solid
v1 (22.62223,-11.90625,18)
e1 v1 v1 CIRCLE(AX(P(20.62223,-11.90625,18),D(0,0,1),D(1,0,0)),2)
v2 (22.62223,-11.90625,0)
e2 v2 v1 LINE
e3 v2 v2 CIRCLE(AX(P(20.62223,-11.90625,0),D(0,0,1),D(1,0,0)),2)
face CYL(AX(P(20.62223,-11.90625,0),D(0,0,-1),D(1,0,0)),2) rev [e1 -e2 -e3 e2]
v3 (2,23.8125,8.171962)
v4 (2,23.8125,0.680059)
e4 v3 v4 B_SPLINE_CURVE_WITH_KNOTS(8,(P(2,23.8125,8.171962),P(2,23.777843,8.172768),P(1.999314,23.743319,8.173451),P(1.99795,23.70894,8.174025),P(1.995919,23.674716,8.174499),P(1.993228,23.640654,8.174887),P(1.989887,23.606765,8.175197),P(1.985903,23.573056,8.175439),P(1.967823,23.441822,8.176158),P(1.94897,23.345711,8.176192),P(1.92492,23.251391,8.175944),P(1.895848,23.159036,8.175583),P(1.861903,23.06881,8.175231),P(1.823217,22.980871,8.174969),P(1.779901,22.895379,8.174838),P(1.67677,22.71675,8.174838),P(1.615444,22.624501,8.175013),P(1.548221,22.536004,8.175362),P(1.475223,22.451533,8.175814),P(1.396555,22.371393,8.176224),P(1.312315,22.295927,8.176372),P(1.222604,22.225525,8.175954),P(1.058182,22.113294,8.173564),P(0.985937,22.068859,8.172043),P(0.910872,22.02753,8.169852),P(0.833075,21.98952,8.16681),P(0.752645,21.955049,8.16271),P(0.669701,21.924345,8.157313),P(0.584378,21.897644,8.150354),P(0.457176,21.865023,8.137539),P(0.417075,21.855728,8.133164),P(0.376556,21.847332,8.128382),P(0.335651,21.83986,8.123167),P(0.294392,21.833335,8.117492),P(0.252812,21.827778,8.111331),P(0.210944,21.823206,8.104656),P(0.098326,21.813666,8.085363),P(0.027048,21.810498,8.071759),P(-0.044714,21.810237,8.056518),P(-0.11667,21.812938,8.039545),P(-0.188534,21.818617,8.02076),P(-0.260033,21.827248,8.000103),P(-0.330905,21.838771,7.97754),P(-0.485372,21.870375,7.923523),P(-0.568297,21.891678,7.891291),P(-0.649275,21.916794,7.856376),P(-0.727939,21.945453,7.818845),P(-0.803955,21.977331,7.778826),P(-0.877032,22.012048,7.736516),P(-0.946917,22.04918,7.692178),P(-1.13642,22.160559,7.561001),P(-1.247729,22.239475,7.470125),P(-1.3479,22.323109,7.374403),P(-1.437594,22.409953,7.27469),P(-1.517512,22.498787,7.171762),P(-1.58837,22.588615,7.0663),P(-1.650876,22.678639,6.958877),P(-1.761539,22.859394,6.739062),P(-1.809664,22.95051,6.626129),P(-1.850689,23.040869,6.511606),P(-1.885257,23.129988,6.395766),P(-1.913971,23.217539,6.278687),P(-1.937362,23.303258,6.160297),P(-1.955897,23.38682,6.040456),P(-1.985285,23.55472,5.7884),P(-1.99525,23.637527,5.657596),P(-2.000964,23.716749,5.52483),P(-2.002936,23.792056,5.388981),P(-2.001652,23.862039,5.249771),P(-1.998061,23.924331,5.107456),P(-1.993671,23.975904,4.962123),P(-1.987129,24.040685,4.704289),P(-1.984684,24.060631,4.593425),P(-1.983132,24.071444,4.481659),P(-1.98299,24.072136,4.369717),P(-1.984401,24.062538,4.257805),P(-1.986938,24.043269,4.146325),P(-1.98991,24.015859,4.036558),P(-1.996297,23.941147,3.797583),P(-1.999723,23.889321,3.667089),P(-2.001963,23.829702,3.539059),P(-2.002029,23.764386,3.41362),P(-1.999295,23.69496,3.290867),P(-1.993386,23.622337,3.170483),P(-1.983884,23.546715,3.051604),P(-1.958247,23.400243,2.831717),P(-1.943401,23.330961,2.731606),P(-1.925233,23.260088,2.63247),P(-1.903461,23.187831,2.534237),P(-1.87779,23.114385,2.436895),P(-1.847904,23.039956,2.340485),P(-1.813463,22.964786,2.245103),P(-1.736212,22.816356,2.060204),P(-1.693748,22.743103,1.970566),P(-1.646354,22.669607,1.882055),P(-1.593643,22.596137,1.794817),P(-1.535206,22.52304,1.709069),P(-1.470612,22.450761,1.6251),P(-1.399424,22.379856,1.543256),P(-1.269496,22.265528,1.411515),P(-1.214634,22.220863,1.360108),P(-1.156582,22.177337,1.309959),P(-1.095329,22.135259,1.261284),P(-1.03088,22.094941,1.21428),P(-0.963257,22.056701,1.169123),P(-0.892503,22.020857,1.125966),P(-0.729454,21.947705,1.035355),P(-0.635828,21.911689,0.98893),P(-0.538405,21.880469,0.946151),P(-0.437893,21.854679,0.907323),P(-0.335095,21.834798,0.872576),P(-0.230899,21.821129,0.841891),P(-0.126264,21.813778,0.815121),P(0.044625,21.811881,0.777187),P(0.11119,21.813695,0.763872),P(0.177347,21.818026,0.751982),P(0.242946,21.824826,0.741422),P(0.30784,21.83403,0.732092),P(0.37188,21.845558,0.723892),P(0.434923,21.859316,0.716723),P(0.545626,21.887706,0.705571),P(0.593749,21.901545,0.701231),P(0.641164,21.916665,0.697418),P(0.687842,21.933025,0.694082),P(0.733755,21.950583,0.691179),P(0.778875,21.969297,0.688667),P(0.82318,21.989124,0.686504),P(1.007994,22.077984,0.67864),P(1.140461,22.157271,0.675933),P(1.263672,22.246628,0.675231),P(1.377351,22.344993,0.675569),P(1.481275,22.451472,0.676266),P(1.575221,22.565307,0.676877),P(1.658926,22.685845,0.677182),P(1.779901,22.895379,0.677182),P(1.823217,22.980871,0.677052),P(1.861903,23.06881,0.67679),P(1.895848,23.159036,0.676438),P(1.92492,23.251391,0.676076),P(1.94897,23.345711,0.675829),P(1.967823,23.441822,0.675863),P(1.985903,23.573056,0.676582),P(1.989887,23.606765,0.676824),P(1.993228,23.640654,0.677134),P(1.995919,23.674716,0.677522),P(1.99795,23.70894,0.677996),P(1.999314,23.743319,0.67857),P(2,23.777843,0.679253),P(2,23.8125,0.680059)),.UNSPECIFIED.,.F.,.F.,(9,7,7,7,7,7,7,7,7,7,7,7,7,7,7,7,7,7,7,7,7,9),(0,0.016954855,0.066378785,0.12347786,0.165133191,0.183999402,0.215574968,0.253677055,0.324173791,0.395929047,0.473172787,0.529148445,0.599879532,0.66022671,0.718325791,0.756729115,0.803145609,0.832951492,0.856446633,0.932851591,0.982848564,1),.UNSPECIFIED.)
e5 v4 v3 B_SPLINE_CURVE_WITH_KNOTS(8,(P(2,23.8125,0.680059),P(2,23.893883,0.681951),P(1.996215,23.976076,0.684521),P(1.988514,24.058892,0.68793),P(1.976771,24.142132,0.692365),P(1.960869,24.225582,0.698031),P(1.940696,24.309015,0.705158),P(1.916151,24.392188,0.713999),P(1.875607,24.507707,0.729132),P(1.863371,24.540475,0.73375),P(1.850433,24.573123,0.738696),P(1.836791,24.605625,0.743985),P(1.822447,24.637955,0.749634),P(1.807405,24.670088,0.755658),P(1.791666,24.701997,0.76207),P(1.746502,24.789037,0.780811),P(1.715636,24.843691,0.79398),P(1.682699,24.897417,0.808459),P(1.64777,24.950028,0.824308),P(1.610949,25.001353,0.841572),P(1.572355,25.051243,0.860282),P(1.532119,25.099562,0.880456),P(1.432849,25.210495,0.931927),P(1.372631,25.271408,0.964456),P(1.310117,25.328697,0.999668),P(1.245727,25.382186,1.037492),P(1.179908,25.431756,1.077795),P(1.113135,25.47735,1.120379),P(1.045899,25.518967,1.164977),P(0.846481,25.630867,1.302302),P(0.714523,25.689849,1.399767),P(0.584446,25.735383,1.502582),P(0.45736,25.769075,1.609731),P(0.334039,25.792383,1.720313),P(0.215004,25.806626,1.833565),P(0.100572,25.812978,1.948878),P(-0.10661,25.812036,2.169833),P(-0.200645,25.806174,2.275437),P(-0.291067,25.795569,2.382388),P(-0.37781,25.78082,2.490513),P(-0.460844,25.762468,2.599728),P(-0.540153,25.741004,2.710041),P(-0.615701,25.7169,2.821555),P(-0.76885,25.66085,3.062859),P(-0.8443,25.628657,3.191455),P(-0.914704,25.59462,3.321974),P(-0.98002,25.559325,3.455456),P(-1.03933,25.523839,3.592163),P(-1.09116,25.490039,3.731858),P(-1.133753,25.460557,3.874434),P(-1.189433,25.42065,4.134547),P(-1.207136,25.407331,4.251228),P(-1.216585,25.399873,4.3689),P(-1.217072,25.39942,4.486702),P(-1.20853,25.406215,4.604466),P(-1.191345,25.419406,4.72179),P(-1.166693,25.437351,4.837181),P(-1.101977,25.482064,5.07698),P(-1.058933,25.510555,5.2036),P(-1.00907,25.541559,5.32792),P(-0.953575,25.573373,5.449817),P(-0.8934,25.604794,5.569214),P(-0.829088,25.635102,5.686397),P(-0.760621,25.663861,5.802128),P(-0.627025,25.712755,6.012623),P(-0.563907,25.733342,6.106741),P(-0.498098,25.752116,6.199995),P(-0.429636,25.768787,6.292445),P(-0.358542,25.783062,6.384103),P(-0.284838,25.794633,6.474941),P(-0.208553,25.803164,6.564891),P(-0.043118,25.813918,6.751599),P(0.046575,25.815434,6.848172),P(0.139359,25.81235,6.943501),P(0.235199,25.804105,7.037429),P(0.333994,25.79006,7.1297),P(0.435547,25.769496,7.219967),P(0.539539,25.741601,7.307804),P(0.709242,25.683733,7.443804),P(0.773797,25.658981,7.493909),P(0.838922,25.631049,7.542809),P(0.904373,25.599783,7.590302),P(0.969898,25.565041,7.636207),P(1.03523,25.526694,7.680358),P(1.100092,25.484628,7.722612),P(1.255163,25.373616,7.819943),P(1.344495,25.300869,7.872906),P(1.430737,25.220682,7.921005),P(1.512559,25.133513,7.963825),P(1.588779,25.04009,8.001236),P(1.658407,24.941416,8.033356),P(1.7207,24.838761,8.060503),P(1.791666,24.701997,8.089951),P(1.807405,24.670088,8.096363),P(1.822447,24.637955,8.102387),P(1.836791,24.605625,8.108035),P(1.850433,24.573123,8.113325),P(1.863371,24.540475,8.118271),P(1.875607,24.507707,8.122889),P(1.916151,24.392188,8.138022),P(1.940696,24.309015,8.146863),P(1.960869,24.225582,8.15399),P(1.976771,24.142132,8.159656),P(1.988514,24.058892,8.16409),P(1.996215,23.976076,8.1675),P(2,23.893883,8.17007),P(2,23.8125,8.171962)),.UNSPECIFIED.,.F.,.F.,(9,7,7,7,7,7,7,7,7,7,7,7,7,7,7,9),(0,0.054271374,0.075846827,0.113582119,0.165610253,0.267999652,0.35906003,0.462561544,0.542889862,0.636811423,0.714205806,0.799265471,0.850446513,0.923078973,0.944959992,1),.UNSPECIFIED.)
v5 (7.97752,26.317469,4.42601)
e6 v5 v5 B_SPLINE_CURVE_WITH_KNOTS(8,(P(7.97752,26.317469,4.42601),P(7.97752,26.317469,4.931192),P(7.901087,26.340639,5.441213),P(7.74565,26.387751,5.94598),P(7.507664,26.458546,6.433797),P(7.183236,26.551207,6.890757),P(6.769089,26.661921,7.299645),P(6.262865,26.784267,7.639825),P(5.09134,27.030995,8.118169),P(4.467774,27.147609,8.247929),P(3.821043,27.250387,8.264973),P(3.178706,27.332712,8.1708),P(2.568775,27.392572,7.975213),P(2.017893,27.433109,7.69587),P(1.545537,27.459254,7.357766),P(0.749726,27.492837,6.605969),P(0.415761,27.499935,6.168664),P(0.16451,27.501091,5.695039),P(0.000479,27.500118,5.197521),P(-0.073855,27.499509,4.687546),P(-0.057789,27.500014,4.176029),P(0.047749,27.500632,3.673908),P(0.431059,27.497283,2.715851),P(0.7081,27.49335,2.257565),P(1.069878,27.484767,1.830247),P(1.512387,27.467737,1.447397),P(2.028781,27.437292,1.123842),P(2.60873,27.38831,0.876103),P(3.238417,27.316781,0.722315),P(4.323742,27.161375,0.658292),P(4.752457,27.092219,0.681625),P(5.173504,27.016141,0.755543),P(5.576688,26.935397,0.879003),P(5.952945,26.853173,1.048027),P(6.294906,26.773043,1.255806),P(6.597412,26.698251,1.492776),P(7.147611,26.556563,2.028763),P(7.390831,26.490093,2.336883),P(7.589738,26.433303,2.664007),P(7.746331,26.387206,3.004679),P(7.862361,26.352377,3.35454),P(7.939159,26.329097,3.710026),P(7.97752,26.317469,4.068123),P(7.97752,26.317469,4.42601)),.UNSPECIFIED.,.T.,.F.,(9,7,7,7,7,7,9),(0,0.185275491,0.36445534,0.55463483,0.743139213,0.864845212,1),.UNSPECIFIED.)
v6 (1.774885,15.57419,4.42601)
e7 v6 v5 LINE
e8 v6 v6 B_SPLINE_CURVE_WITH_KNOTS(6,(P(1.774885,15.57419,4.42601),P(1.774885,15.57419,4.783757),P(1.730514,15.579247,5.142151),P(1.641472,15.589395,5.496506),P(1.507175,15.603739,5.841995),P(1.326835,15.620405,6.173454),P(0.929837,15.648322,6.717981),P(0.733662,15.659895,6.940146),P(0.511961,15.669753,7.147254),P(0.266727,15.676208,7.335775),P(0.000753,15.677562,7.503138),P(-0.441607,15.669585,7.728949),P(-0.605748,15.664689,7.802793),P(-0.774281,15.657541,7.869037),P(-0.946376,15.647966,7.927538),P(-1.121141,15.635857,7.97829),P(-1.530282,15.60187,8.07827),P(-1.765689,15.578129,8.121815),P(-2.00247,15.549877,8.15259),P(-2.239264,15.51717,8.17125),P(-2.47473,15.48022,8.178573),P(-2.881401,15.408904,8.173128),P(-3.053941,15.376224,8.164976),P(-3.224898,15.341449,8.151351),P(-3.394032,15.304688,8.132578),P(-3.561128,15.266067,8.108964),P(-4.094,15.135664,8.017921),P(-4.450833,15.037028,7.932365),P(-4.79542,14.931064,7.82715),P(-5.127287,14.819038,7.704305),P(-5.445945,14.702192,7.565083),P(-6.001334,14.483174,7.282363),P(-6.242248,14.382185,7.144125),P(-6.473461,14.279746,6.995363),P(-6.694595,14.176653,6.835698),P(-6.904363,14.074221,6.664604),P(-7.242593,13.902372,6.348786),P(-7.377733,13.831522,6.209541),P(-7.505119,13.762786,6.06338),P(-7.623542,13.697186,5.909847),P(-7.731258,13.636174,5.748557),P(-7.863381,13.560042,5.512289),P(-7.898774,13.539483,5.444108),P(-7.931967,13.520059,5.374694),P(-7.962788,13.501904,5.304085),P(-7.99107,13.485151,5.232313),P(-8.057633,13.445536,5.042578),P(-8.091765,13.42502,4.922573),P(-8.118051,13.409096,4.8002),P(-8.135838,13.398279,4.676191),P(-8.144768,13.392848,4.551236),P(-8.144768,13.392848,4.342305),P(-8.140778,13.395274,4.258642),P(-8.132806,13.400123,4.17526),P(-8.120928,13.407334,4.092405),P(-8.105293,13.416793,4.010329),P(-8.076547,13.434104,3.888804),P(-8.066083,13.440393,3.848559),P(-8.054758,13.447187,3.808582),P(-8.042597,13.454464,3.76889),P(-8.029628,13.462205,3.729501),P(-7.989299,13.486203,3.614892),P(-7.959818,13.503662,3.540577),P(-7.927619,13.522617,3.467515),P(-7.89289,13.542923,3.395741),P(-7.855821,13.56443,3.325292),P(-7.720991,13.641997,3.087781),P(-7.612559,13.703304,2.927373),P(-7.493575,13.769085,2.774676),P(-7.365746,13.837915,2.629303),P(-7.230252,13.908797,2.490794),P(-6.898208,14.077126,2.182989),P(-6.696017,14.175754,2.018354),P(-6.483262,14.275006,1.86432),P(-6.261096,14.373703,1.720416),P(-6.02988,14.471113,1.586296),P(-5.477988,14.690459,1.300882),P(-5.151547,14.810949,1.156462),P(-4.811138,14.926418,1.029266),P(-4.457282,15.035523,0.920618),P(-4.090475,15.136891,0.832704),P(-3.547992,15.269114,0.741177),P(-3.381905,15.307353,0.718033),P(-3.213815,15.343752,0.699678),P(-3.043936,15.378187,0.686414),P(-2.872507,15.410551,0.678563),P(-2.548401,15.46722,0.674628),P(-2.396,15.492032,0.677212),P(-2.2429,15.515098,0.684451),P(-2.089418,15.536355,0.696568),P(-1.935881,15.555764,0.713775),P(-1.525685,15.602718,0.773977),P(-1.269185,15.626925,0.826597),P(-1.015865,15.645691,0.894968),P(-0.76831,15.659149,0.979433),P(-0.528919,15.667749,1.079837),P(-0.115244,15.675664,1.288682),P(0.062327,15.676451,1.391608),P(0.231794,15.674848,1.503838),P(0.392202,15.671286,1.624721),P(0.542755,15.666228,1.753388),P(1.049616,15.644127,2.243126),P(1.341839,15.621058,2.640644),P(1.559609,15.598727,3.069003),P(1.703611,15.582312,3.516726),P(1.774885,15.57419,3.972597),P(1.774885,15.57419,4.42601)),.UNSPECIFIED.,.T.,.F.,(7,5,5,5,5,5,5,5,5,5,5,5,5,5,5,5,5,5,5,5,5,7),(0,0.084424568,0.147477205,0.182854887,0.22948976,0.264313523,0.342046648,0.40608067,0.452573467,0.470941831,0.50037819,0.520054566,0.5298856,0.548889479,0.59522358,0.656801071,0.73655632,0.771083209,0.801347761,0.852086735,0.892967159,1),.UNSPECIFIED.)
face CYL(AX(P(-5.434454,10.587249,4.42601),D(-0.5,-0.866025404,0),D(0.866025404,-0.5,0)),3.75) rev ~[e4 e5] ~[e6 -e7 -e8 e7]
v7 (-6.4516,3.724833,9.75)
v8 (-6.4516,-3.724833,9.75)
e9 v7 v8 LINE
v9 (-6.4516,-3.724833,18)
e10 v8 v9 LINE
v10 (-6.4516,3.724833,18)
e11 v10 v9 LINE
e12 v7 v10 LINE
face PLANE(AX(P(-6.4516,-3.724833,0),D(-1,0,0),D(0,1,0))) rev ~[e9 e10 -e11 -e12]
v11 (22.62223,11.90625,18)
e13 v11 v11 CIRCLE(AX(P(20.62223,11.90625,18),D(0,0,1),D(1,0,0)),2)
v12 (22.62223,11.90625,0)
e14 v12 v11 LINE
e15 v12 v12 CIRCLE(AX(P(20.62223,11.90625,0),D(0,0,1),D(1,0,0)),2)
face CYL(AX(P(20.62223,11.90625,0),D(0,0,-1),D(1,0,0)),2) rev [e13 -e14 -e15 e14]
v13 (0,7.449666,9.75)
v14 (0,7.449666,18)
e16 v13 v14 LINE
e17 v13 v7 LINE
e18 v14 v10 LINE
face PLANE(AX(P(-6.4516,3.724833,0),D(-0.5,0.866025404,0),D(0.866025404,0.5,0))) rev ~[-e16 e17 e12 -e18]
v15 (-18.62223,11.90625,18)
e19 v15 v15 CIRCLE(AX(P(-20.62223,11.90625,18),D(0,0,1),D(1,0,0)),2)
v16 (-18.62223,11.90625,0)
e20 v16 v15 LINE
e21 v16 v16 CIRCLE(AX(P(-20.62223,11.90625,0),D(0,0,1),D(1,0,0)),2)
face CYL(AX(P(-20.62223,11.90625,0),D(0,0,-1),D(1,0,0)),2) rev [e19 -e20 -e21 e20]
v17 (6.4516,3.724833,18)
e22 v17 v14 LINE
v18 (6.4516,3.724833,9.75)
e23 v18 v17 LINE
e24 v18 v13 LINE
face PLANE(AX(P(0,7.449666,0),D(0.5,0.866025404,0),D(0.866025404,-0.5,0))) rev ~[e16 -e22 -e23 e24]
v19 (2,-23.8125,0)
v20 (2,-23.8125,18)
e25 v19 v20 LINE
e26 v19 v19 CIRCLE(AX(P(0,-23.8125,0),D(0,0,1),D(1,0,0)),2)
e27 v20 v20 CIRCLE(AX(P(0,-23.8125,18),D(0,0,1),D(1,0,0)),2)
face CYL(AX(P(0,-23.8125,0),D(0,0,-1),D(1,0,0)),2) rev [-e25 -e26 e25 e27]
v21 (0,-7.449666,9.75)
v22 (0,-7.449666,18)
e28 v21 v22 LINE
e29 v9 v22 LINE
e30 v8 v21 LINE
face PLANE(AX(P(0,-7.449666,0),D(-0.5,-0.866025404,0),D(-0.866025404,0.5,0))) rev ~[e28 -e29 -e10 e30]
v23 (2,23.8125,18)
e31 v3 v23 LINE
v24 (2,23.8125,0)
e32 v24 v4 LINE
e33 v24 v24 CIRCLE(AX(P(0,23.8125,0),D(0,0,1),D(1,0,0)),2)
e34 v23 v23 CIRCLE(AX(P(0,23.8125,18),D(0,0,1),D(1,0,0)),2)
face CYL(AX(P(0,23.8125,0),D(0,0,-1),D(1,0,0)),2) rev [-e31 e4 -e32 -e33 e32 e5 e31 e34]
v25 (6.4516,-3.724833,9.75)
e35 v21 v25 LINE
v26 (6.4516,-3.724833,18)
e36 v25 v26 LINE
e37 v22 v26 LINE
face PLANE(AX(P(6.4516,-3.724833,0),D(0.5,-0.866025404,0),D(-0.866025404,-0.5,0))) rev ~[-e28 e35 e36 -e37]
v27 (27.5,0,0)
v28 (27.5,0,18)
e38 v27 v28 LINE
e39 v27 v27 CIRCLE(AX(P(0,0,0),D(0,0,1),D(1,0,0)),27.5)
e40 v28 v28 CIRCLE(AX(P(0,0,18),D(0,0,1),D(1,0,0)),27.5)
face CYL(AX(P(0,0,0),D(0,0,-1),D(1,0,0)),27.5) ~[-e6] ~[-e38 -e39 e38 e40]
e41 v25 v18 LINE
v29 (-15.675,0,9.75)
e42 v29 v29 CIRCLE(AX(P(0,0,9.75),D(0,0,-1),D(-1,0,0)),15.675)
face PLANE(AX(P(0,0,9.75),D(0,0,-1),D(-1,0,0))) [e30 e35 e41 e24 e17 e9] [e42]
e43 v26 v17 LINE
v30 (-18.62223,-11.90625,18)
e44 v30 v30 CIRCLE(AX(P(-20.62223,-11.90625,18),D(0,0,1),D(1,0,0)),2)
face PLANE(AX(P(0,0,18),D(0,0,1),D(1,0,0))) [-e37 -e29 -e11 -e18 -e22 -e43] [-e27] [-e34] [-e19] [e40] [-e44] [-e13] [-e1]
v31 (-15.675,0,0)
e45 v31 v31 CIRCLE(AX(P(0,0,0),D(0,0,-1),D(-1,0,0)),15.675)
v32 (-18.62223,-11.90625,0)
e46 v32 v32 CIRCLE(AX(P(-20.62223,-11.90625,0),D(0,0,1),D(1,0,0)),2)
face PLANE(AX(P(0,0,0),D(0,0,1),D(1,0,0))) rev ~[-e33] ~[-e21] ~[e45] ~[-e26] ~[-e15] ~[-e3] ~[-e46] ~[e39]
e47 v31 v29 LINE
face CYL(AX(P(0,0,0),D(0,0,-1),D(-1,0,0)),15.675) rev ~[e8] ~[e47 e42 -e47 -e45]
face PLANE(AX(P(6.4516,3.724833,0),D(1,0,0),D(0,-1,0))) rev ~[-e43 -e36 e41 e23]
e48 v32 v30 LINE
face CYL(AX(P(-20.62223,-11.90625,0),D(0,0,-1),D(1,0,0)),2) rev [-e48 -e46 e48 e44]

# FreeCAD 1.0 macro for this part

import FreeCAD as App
import Part
import Sketcher

V = App.Vector
Q = App.Units.Quantity


def add_polygon(sketch, points):
    """Adds a closed chain of lines whose ends are joined by coincident constraints."""
    first, n = sketch.GeometryCount, len(points)
    for a, b in zip(points, points[1:] + points[:1]):
        sketch.addGeometry(Part.LineSegment(App.Vector(*a, 0), App.Vector(*b, 0)), False)
    for i in range(n):
        sketch.addConstraint(Sketcher.Constraint("Coincident", first + i, 2, first + (i + 1) % n, 1))

doc = App.newDocument("Part")
body = doc.addObject("PartDesign::Body", "Body")

# Sketch on XY plane
sketch1 = doc.addObject("Sketcher::SketchObject", "Sketch")
body.addObject(sketch1)
sketch1.AttachmentSupport = (doc.XY_Plane, [""])
sketch1.MapMode = "FlatFace"
sketch1.addGeometry([
    Part.Circle(V(0, 0, 0), V(0, 0, 1), 27.5),  # 0
    Part.Circle(V(-20.6, -11.9, 0), V(0, 0, 1), 2),  # 1
    Part.Circle(V(0, -23.8, 0), V(0, 0, 1), 2),  # 2
    Part.Circle(V(20.6, -11.9, 0), V(0, 0, 1), 2),  # 3
    Part.Circle(V(-20.6, 11.9, 0), V(0, 0, 1), 2),  # 4
    Part.Circle(V(20.6, 11.9, 0), V(0, 0, 1), 2),  # 5
    Part.Circle(V(0, 23.8, 0), V(0, 0, 1), 2),  # 6
], False)
sketch1.addConstraint([
    Sketcher.Constraint("Coincident", 0, 3, -1, 1),
    Sketcher.Constraint("Equal", 1, 2),
    Sketcher.Constraint("Equal", 2, 3),
    Sketcher.Constraint("Equal", 3, 4),
    Sketcher.Constraint("Equal", 4, 5),
    Sketcher.Constraint("Equal", 5, 6),
    Sketcher.Constraint("Symmetric", 3, 3, 4, 3, -1, 1),
    Sketcher.Constraint("Symmetric", 1, 3, 5, 3, -1, 1),
    Sketcher.Constraint("Symmetric", 2, 3, 6, 3, -1, 1),
    Sketcher.Constraint("Symmetric", 1, 3, 3, 3, -2),
    Sketcher.Constraint("PointOnObject", 2, 3, -2),
    Sketcher.Constraint("Diameter", 0, Q("55 mm")),
    Sketcher.Constraint("Diameter", 1, Q("4 mm")),
    Sketcher.Constraint("DistanceY", 2, 3, -1, 1, Q("23.8125 mm")),
    Sketcher.Constraint("DistanceY", 1, 3, 4, 3, Q("23.8125 mm")),
    Sketcher.Constraint("DistanceX", 1, 3, -1, 1, Q("20.62223 mm")),
])
pad1 = doc.addObject("PartDesign::Pad", "Pad")
body.addObject(pad1)
pad1.Profile = sketch1
pad1.Length = 18

# Sketch on XY plane
sketch2 = doc.addObject("Sketcher::SketchObject", "Sketch001")
body.addObject(sketch2)
sketch2.AttachmentSupport = (doc.XY_Plane, [""])
sketch2.MapMode = "FlatFace"
add_polygon(sketch2, [(0, 7), (6, 4), (6, -4), (0, -7), (-6, -4), (-6, 4)])  # lines 0-5
sketch2.addConstraint([
    Sketcher.Constraint("Vertical", 1),
    Sketcher.Constraint("Vertical", 4),
    Sketcher.Constraint("Symmetric", 0, 2, 3, 2, -1, 1),
    Sketcher.Constraint("Symmetric", 2, 2, 5, 2, -1, 1),
    Sketcher.Constraint("PointOnObject", 2, 2, -2),
    Sketcher.Constraint("Parallel", 2, 5),
    Sketcher.Constraint("Horizontal", 1, 2, 3, 2),
    Sketcher.Constraint("Angle", 0, Q("-30 deg")),
    Sketcher.Constraint("DistanceX", -1, 1, 0, 2, Q("6.4516 mm")),
    Sketcher.Constraint("DistanceY", 2, 2, 0, 2, Q("11.174499 mm")),
])
pocket1 = doc.addObject("PartDesign::Pocket", "Pocket")
body.addObject(pocket1)
pocket1.Profile = sketch2
pocket1.Type = "ThroughAll"
pocket1.Reversed = True

# Sketch on XY plane
sketch3 = doc.addObject("Sketcher::SketchObject", "Sketch002")
body.addObject(sketch3)
sketch3.AttachmentSupport = (doc.XY_Plane, [""])
sketch3.MapMode = "FlatFace"
sketch3.addGeometry(Part.Circle(V(0, 0, 0), V(0, 0, 1), 16), False)
sketch3.addConstraint([
    Sketcher.Constraint("Coincident", 0, 3, -1, 1),
    Sketcher.Constraint("Diameter", 0, Q("31.35 mm")),
])
pocket2 = doc.addObject("PartDesign::Pocket", "Pocket001")
body.addObject(pocket2)
pocket2.Profile = sketch3
pocket2.Length = 9.75
pocket2.Reversed = True

# Sketch on an angled plane
sketch4 = doc.addObject("Sketcher::SketchObject", "Sketch003")
body.addObject(sketch4)
sketch4.Placement = App.Placement(V(0.225708, 7.319353, 0), App.Rotation(V(0.866025404, -0.5, 0), V(0, 0, 1), V(-0.5, -0.866025404, 0), "ZXY"))
sketch4.addGeometry(Part.Circle(V(-6.5, 4.4, 0), V(0, 0, 1), 3.8), False)
sketch4.addConstraint([
    Sketcher.Constraint("Diameter", 0, Q("7.5 mm")),
    Sketcher.Constraint("DistanceY", -1, 1, 0, 3, Q("4.42601 mm")),
    Sketcher.Constraint("DistanceX", 0, 3, -1, 1, Q("6.535792 mm")),
])
pocket3 = doc.addObject("PartDesign::Pocket", "Pocket002")
body.addObject(pocket3)
pocket3.Profile = sketch4
pocket3.Type = "ThroughAll"

doc.recompute()
